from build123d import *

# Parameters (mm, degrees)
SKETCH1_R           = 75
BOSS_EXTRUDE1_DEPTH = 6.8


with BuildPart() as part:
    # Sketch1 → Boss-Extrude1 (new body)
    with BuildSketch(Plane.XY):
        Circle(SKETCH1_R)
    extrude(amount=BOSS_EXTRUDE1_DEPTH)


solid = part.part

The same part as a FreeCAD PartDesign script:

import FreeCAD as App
import Part
import Sketcher

V = App.Vector
Q = App.Units.Quantity

doc = App.newDocument("Part")
params = doc.addObject("Spreadsheet::Sheet", "Params")
for row, (alias, value) in enumerate([
    ("sketch1_diameter", "150 mm"),
    ("pad1_length", "6.8 mm"),
], start=1):
    params.set(f"A{row}", alias)
    params.set(f"B{row}", "=" + value)
    params.setAlias(f"B{row}", alias)

body = doc.addObject("PartDesign::Body", "Body")

# Sketch on XY plane
sketch1 = body.newObject("Sketcher::SketchObject", "Sketch")
sketch1.AttachmentSupport = (doc.getObject("XY_Plane"), [""])
sketch1.MapMode = "FlatFace"
sketch1.addGeometry(Part.Circle(V(0, 0, 0), V(0, 0, 1), 75), False)
sketch1.addConstraint([
    Sketcher.Constraint("Coincident", 0, 3, -1, 1),
    Sketcher.Constraint("Diameter", 0, Q("150 mm")),
])
sketch1.setExpression("Constraints[1]", "Params.sketch1_diameter")
pad1 = body.newObject("PartDesign::Pad", "Pad")
pad1.Profile = sketch1
pad1.setExpression("Length", "Params.pad1_length")

doc.recompute()
